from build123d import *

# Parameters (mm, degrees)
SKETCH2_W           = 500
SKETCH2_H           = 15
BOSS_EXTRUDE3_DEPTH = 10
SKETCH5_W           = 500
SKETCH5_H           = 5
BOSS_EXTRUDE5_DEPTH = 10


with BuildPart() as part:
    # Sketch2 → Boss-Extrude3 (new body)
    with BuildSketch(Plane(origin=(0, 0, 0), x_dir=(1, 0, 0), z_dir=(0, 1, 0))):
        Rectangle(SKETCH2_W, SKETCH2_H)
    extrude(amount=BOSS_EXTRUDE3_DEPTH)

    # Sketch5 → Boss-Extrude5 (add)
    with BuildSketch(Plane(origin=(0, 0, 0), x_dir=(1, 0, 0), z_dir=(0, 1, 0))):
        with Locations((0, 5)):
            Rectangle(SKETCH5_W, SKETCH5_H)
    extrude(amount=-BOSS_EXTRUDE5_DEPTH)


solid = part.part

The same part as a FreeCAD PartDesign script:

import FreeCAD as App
import Part
import Sketcher
from FreeCAD import Vector


def add_polygon(sketch, points):
    """Adds a closed chain of lines whose ends are joined by coincident constraints."""
    first, n = sketch.GeometryCount, len(points)
    for a, b in zip(points, points[1:] + points[:1]):
        sketch.addGeometry(Part.LineSegment(App.Vector(*a, 0), App.Vector(*b, 0)), False)
    for i in range(n):
        sketch.addConstraint(Sketcher.Constraint("Coincident", first + i, 2, first + (i + 1) % n, 1))

doc = App.newDocument("Part")
body = doc.addObject("PartDesign::Body", "Body")

# Sketch on XZ plane
sketch1 = body.newObject("Sketcher::SketchObject", "Sketch")
sketch1.AttachmentSupport = (doc.getObject("XZ_Plane"), [""])
sketch1.MapMode = "FlatFace"
add_polygon(sketch1, [(-250, -8), (-250, 8), (250, 8), (250, -8)])  # lines 0-3
sketch1.addConstraint([
    Sketcher.Constraint("Vertical", 0),
    Sketcher.Constraint("Horizontal", 1),
    Sketcher.Constraint("Vertical", 2),
    Sketcher.Constraint("Horizontal", 3),
    Sketcher.Constraint("Symmetric", 0, 2, 2, 2, -1, 1),
    Sketcher.Constraint("DistanceX", 1, 1, 1, 2, 500.0),
    Sketcher.Constraint("DistanceY", 0, 1, 0, 2, 15.0),
])
pad1 = body.newObject("PartDesign::Pad", "Pad")
pad1.Profile = sketch1
pad1.Length = 10
pad1.Reversed = True

# Sketch on XZ plane
sketch2 = body.newObject("Sketcher::SketchObject", "Sketch001")
sketch2.AttachmentSupport = (doc.getObject("XZ_Plane"), [""])
sketch2.MapMode = "FlatFace"
add_polygon(sketch2, [(-250, -8), (-250, -2), (250, -2), (250, -8)])  # lines 0-3
sketch2.addConstraint([
    Sketcher.Constraint("Vertical", 0),
    Sketcher.Constraint("Horizontal", 1),
    Sketcher.Constraint("Vertical", 2),
    Sketcher.Constraint("Horizontal", 3),
    Sketcher.Constraint("DistanceX", 1, 1, 1, 2, 500.0),
    Sketcher.Constraint("DistanceY", 0, 1, 0, 2, 5.0),
    Sketcher.Constraint("DistanceX", 0, 2, -1, 1, 250.0),
    Sketcher.Constraint("DistanceY", 0, 2, -1, 1, 2.5),
])
pad2 = body.newObject("PartDesign::Pad", "Pad001")
pad2.Profile = sketch2
pad2.Length = 10

doc.recompute()
